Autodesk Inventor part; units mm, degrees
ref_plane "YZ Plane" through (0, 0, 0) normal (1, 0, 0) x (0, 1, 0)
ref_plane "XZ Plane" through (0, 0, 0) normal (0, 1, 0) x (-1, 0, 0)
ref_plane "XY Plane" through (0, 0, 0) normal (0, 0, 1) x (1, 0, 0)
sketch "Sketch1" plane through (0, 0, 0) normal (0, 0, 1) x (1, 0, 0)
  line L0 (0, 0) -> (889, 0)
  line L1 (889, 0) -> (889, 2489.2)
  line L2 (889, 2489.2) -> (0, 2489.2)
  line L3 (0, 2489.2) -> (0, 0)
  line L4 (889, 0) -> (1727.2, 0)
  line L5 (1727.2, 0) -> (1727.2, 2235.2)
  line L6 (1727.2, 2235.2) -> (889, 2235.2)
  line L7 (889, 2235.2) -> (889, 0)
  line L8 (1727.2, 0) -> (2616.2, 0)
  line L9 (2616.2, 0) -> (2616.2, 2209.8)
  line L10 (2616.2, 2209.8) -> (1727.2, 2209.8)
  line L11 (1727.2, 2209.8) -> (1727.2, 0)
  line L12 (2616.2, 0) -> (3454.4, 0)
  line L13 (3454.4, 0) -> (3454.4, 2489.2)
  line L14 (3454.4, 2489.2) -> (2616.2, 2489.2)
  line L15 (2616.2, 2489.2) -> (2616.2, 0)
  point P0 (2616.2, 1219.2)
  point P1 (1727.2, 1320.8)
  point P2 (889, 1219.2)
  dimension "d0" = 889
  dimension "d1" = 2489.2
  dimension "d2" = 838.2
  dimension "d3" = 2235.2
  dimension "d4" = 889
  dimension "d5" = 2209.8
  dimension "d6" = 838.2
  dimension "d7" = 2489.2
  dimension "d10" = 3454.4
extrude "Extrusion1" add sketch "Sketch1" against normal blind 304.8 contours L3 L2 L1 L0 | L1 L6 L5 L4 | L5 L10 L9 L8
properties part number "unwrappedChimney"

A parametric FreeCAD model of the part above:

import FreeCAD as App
import Part
import Sketcher
Q = App.Units.Quantity


def add_polygon(sketch, points):
    """Adds a closed chain of lines whose ends are joined by coincident constraints."""
    first, n = sketch.GeometryCount, len(points)
    for a, b in zip(points, points[1:] + points[:1]):
        sketch.addGeometry(Part.LineSegment(App.Vector(*a, 0), App.Vector(*b, 0)), False)
    for i in range(n):
        sketch.addConstraint(Sketcher.Constraint("Coincident", first + i, 2, first + (i + 1) % n, 1))

doc = App.newDocument("Part")
body = doc.addObject("PartDesign::Body", "Body")

# Sketch on XY plane
sketch1 = body.newObject("Sketcher::SketchObject", "Sketch")
sketch1.AttachmentSupport = (doc.getObject("XY_Plane"), [""])
sketch1.MapMode = "FlatFace"
add_polygon(sketch1, [(0, 2489), (0, 0), (2616, 0), (2616, 2210), (1727, 2210), (1727, 2235), (889, 2235), (889, 2489)])  # lines 0-7
sketch1.addConstraint(Sketcher.Constraint("Vertical", 0))
sketch1.addConstraint(Sketcher.Constraint("Horizontal", 1))
sketch1.addConstraint(Sketcher.Constraint("Vertical", 2))
sketch1.addConstraint(Sketcher.Constraint("Horizontal", 3))
sketch1.addConstraint(Sketcher.Constraint("Vertical", 4))
sketch1.addConstraint(Sketcher.Constraint("Horizontal", 5))
sketch1.addConstraint(Sketcher.Constraint("Vertical", 6))
sketch1.addConstraint(Sketcher.Constraint("Horizontal", 7))
sketch1.addConstraint(Sketcher.Constraint("Coincident", 0, 2, -1, 1))
sketch1.addConstraint(Sketcher.Constraint("Equal", 3, 7))
sketch1.addConstraint(Sketcher.Constraint("DistanceX", 3, 2, 3, 1, Q("35 in")))
sketch1.addConstraint(Sketcher.Constraint("DistanceX", 5, 2, 5, 1, Q("33 in")))
sketch1.addConstraint(Sketcher.Constraint("DistanceY", 0, 2, 0, 1, Q("98 in")))
sketch1.addConstraint(Sketcher.Constraint("DistanceY", 2, 1, 2, 2, Q("87 in")))
sketch1.addConstraint(Sketcher.Constraint("DistanceY", -1, 1, 4, 2, Q("88 in")))
pad1 = body.newObject("PartDesign::Pad", "Pad")
pad1.Profile = sketch1
pad1.Length = Q("12 in")
pad1.Reversed = True

doc.recompute()
